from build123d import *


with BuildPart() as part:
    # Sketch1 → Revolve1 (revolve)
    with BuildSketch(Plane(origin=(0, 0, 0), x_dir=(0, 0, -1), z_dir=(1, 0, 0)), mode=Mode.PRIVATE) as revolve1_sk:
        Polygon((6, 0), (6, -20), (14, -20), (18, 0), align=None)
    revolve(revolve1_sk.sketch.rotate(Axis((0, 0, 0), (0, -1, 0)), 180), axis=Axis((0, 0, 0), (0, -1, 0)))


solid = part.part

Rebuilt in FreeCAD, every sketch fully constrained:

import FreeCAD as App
import Part
import Sketcher

V = App.Vector
Q = App.Units.Quantity


def add_polygon(sketch, points):
    """Adds a closed chain of lines whose ends are joined by coincident constraints."""
    first, n = sketch.GeometryCount, len(points)
    for a, b in zip(points, points[1:] + points[:1]):
        sketch.addGeometry(Part.LineSegment(App.Vector(*a, 0), App.Vector(*b, 0)), False)
    for i in range(n):
        sketch.addConstraint(Sketcher.Constraint("Coincident", first + i, 2, first + (i + 1) % n, 1))

doc = App.newDocument("Part")
body = doc.addObject("PartDesign::Body", "Body")

# Sketch on YZ plane
sketch1 = body.newObject("Sketcher::SketchObject", "Sketch")
sketch1.AttachmentSupport = (doc.getObject("YZ_Plane"), [""])
sketch1.MapMode = "FlatFace"
add_polygon(sketch1, [(0, -6), (-20, -6), (-20, -14), (0, -18)])  # lines 0-3
sketch1.addConstraint(Sketcher.Constraint("Horizontal", 0))
sketch1.addConstraint(Sketcher.Constraint("Vertical", 1))
sketch1.addConstraint(Sketcher.Constraint("Vertical", 3))
sketch1.addConstraint(Sketcher.Constraint("PointOnObject", 2, 2, -2))
sketch1.addConstraint(Sketcher.Constraint("DistanceX", 0, 2, 0, 1, Q("20 mm")))
sketch1.addConstraint(Sketcher.Constraint("DistanceY", 1, 2, 1, 1, Q("8 mm")))
sketch1.addConstraint(Sketcher.Constraint("DistanceY", 3, 1, 3, 2, Q("12 mm")))
sketch1.addConstraint(Sketcher.Constraint("DistanceY", 0, 2, -1, 1, Q("6 mm")))
revolution = body.newObject("PartDesign::Revolution", "Revolution")
revolution.Profile = sketch1
revolution.ReferenceAxis = (sketch1, ["H_Axis"])
revolution.Angle = 360

doc.recompute()
